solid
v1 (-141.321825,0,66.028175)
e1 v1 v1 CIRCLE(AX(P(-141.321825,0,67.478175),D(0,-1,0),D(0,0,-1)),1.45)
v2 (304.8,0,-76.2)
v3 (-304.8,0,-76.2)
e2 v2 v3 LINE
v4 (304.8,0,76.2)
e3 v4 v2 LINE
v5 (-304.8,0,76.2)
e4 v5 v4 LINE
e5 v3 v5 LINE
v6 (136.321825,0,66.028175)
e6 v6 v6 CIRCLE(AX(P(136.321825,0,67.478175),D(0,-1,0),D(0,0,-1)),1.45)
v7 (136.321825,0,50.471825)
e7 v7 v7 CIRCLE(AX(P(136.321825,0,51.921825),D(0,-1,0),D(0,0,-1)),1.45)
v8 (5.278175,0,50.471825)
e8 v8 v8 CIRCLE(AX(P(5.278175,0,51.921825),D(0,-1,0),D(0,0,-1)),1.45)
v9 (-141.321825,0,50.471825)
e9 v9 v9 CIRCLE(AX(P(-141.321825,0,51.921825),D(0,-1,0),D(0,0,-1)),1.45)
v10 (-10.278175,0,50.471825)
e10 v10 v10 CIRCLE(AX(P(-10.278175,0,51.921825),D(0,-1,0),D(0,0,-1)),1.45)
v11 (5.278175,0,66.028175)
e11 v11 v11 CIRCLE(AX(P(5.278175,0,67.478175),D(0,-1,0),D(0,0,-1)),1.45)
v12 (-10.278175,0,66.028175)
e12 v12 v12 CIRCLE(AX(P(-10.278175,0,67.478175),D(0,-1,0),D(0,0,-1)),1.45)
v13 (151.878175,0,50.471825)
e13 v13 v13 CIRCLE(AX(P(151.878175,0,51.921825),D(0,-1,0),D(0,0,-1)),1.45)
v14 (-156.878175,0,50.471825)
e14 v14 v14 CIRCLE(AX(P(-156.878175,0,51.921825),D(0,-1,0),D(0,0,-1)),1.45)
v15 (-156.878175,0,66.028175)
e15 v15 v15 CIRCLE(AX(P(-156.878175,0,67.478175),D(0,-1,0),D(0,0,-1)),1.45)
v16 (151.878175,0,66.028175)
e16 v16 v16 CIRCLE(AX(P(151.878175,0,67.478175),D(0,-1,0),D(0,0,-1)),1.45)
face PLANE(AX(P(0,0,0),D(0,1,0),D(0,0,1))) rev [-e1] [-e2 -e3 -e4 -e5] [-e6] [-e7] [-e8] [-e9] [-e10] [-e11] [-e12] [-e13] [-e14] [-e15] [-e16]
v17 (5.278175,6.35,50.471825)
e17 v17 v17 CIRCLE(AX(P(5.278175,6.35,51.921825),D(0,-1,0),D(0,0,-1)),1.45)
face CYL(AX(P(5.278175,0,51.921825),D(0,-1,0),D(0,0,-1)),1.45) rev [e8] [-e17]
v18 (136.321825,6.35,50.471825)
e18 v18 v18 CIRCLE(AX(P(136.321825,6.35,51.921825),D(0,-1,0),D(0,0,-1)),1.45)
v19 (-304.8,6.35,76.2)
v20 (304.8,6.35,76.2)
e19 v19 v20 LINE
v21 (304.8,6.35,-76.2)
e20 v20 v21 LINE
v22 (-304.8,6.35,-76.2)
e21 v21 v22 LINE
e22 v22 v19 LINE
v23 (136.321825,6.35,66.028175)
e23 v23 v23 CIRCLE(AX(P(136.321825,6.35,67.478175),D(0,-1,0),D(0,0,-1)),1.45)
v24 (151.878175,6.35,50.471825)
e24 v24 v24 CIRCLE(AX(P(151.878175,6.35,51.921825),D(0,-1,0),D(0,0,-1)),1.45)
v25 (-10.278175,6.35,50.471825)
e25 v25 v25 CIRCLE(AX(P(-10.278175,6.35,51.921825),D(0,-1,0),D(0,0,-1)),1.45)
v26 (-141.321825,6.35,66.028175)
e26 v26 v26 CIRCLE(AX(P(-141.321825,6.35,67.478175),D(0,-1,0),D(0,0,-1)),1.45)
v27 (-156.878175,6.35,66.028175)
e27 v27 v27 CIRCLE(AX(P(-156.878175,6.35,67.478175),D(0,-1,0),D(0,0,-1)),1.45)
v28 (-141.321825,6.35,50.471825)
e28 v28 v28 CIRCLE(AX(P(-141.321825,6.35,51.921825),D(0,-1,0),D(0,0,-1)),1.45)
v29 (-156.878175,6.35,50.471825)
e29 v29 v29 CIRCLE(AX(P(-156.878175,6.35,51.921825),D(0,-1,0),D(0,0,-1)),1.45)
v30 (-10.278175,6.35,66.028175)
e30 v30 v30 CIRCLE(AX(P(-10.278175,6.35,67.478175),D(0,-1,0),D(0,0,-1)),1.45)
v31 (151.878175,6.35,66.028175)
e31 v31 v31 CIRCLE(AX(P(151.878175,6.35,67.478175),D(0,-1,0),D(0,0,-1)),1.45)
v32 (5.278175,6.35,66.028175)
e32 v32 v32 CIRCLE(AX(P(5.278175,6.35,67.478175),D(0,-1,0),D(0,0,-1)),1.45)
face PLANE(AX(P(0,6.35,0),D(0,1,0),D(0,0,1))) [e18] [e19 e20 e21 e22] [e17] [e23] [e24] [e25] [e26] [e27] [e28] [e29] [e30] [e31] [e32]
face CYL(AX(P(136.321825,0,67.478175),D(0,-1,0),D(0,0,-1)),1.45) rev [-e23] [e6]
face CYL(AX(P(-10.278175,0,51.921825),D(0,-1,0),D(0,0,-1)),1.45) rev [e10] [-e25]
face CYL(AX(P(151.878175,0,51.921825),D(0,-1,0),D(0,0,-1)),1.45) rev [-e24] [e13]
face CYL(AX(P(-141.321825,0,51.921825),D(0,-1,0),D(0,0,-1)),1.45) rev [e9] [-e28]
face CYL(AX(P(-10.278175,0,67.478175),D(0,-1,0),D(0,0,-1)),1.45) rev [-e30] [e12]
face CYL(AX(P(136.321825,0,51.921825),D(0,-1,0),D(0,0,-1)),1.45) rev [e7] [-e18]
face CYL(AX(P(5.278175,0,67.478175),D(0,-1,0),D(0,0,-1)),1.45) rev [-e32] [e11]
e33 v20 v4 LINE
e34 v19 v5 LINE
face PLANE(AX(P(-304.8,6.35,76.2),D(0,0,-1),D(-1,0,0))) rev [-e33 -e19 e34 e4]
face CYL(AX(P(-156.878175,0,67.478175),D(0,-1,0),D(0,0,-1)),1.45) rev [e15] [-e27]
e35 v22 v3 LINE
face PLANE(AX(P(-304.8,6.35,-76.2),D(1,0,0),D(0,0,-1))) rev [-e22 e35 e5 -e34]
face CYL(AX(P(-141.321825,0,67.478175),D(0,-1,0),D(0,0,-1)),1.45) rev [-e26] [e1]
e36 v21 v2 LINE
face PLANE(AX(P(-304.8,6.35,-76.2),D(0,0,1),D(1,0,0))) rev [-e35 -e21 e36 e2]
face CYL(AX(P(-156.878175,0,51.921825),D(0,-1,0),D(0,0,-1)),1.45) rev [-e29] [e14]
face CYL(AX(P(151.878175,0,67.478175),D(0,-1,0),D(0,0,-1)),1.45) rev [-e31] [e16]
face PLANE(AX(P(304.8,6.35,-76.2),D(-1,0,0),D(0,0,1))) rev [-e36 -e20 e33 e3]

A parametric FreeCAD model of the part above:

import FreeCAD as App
import Part
import Sketcher
from FreeCAD import Vector
Q = App.Units.Quantity


def add_polygon(sketch, points):
    """Adds a closed chain of lines whose ends are joined by coincident constraints."""
    first, n = sketch.GeometryCount, len(points)
    for a, b in zip(points, points[1:] + points[:1]):
        sketch.addGeometry(Part.LineSegment(App.Vector(*a, 0), App.Vector(*b, 0)), False)
    for i in range(n):
        sketch.addConstraint(Sketcher.Constraint("Coincident", first + i, 2, first + (i + 1) % n, 1))

doc = App.newDocument("Part")
body = doc.addObject("PartDesign::Body", "Body")

# Sketch on XZ plane
sketch1 = doc.addObject("Sketcher::SketchObject", "Sketch")
body.addObject(sketch1)
sketch1.AttachmentSupport = (doc.XZ_Plane, [""])
sketch1.MapMode = "FlatFace"
add_polygon(sketch1, [(-305, -76), (-305, 76), (305, 76), (305, -76)])  # lines 0-3
sketch1.addConstraint(Sketcher.Constraint("Vertical", 0))
sketch1.addConstraint(Sketcher.Constraint("Horizontal", 1))
sketch1.addConstraint(Sketcher.Constraint("Vertical", 2))
sketch1.addConstraint(Sketcher.Constraint("Horizontal", 3))
sketch1.addConstraint(Sketcher.Constraint("Symmetric", 0, 2, 2, 2, -1, 1))
sketch1.addConstraint(Sketcher.Constraint("DistanceX", 1, 1, 1, 2, Q("24 in")))
sketch1.addConstraint(Sketcher.Constraint("DistanceY", 0, 1, 0, 2, Q("6 in")))
pad1 = doc.addObject("PartDesign::Pad", "Pad")
body.addObject(pad1)
pad1.Profile = sketch1
pad1.Length = Q("0.25 in")
pad1.Reversed = True

# Sketch on XZ plane
sketch2 = doc.addObject("Sketcher::SketchObject", "Sketch001")
body.addObject(sketch2)
sketch2.AttachmentSupport = (doc.XZ_Plane, [""])
sketch2.MapMode = "FlatFace"
sketch2.addGeometry(Part.Circle(Vector(-156.9, 51.9, 0), Vector(0, 0, 1), 1.4), False)
sketch2.addGeometry(Part.Circle(Vector(-141.3, 51.9, 0), Vector(0, 0, 1), 1.4), False)
sketch2.addGeometry(Part.Circle(Vector(-141.3, 67.5, 0), Vector(0, 0, 1), 1.4), False)
sketch2.addGeometry(Part.Circle(Vector(-156.9, 67.5, 0), Vector(0, 0, 1), 1.4), False)
sketch2.addGeometry(Part.Circle(Vector(-10.3, 51.9, 0), Vector(0, 0, 1), 1.4), False)
sketch2.addGeometry(Part.Circle(Vector(-10.3, 67.5, 0), Vector(0, 0, 1), 1.4), False)
sketch2.addGeometry(Part.Circle(Vector(5.3, 67.5, 0), Vector(0, 0, 1), 1.4), False)
sketch2.addGeometry(Part.Circle(Vector(5.3, 51.9, 0), Vector(0, 0, 1), 1.4), False)
sketch2.addGeometry(Part.Circle(Vector(136.3, 51.9, 0), Vector(0, 0, 1), 1.4), False)
sketch2.addGeometry(Part.Circle(Vector(136.3, 67.5, 0), Vector(0, 0, 1), 1.4), False)
sketch2.addGeometry(Part.Circle(Vector(151.9, 67.5, 0), Vector(0, 0, 1), 1.4), False)
sketch2.addGeometry(Part.Circle(Vector(151.9, 51.9, 0), Vector(0, 0, 1), 1.4), False)
sketch2.addConstraint(Sketcher.Constraint("Equal", 0, 1))
sketch2.addConstraint(Sketcher.Constraint("Equal", 1, 2))
sketch2.addConstraint(Sketcher.Constraint("Equal", 2, 3))
sketch2.addConstraint(Sketcher.Constraint("Equal", 3, 4))
sketch2.addConstraint(Sketcher.Constraint("Equal", 4, 5))
sketch2.addConstraint(Sketcher.Constraint("Equal", 5, 6))
sketch2.addConstraint(Sketcher.Constraint("Equal", 6, 7))
sketch2.addConstraint(Sketcher.Constraint("Equal", 7, 8))
sketch2.addConstraint(Sketcher.Constraint("Equal", 8, 9))
sketch2.addConstraint(Sketcher.Constraint("Equal", 9, 10))
sketch2.addConstraint(Sketcher.Constraint("Equal", 10, 11))
sketch2.addConstraint(Sketcher.Constraint("Horizontal", 0, 3, 1, 3))
sketch2.addConstraint(Sketcher.Constraint("Horizontal", 2, 3, 3, 3))
sketch2.addConstraint(Sketcher.Constraint("Horizontal", 1, 3, 4, 3))
sketch2.addConstraint(Sketcher.Constraint("Horizontal", 3, 3, 5, 3))
sketch2.addConstraint(Sketcher.Constraint("Horizontal", 5, 3, 6, 3))
sketch2.addConstraint(Sketcher.Constraint("Horizontal", 4, 3, 7, 3))
sketch2.addConstraint(Sketcher.Constraint("Horizontal", 7, 3, 8, 3))
sketch2.addConstraint(Sketcher.Constraint("Horizontal", 6, 3, 9, 3))
sketch2.addConstraint(Sketcher.Constraint("Horizontal", 9, 3, 10, 3))
sketch2.addConstraint(Sketcher.Constraint("Horizontal", 8, 3, 11, 3))
sketch2.addConstraint(Sketcher.Constraint("Vertical", 1, 3, 2, 3))
sketch2.addConstraint(Sketcher.Constraint("Vertical", 0, 3, 3, 3))
sketch2.addConstraint(Sketcher.Constraint("Vertical", 4, 3, 5, 3))
sketch2.addConstraint(Sketcher.Constraint("Vertical", 6, 3, 7, 3))
sketch2.addConstraint(Sketcher.Constraint("Vertical", 8, 3, 9, 3))
sketch2.addConstraint(Sketcher.Constraint("Vertical", 10, 3, 11, 3))
sketch2.addConstraint(Sketcher.Constraint("Diameter", 0, 2.9))
sketch2.addConstraint(Sketcher.Constraint("DistanceX", 0, 3, 4, 3, 146.6))
sketch2.addConstraint(Sketcher.Constraint("DistanceX", 2, 3, 6, 3, 146.6))
sketch2.addConstraint(Sketcher.Constraint("DistanceX", 4, 3, 8, 3, 146.6))
sketch2.addConstraint(Sketcher.Constraint("DistanceX", 6, 3, 10, 3, 146.6))
sketch2.addConstraint(Sketcher.Constraint("DistanceX", 0, 3, 1, 3, 15.556349))
sketch2.addConstraint(Sketcher.Constraint("DistanceY", 1, 3, 2, 3, 15.556349))
sketch2.addConstraint(Sketcher.Constraint("DistanceX", 0, 3, -1, 1, 156.878175))
sketch2.addConstraint(Sketcher.Constraint("DistanceY", -1, 1, 0, 3, 51.921825))
doc.recompute()
hole = doc.addObject("PartDesign::Hole", "Hole")
body.addObject(hole)
hole.Profile = sketch2
hole.ThreadType = "None"
hole.Diameter = 2.9
hole.DepthType = "ThroughAll"

doc.recompute()
